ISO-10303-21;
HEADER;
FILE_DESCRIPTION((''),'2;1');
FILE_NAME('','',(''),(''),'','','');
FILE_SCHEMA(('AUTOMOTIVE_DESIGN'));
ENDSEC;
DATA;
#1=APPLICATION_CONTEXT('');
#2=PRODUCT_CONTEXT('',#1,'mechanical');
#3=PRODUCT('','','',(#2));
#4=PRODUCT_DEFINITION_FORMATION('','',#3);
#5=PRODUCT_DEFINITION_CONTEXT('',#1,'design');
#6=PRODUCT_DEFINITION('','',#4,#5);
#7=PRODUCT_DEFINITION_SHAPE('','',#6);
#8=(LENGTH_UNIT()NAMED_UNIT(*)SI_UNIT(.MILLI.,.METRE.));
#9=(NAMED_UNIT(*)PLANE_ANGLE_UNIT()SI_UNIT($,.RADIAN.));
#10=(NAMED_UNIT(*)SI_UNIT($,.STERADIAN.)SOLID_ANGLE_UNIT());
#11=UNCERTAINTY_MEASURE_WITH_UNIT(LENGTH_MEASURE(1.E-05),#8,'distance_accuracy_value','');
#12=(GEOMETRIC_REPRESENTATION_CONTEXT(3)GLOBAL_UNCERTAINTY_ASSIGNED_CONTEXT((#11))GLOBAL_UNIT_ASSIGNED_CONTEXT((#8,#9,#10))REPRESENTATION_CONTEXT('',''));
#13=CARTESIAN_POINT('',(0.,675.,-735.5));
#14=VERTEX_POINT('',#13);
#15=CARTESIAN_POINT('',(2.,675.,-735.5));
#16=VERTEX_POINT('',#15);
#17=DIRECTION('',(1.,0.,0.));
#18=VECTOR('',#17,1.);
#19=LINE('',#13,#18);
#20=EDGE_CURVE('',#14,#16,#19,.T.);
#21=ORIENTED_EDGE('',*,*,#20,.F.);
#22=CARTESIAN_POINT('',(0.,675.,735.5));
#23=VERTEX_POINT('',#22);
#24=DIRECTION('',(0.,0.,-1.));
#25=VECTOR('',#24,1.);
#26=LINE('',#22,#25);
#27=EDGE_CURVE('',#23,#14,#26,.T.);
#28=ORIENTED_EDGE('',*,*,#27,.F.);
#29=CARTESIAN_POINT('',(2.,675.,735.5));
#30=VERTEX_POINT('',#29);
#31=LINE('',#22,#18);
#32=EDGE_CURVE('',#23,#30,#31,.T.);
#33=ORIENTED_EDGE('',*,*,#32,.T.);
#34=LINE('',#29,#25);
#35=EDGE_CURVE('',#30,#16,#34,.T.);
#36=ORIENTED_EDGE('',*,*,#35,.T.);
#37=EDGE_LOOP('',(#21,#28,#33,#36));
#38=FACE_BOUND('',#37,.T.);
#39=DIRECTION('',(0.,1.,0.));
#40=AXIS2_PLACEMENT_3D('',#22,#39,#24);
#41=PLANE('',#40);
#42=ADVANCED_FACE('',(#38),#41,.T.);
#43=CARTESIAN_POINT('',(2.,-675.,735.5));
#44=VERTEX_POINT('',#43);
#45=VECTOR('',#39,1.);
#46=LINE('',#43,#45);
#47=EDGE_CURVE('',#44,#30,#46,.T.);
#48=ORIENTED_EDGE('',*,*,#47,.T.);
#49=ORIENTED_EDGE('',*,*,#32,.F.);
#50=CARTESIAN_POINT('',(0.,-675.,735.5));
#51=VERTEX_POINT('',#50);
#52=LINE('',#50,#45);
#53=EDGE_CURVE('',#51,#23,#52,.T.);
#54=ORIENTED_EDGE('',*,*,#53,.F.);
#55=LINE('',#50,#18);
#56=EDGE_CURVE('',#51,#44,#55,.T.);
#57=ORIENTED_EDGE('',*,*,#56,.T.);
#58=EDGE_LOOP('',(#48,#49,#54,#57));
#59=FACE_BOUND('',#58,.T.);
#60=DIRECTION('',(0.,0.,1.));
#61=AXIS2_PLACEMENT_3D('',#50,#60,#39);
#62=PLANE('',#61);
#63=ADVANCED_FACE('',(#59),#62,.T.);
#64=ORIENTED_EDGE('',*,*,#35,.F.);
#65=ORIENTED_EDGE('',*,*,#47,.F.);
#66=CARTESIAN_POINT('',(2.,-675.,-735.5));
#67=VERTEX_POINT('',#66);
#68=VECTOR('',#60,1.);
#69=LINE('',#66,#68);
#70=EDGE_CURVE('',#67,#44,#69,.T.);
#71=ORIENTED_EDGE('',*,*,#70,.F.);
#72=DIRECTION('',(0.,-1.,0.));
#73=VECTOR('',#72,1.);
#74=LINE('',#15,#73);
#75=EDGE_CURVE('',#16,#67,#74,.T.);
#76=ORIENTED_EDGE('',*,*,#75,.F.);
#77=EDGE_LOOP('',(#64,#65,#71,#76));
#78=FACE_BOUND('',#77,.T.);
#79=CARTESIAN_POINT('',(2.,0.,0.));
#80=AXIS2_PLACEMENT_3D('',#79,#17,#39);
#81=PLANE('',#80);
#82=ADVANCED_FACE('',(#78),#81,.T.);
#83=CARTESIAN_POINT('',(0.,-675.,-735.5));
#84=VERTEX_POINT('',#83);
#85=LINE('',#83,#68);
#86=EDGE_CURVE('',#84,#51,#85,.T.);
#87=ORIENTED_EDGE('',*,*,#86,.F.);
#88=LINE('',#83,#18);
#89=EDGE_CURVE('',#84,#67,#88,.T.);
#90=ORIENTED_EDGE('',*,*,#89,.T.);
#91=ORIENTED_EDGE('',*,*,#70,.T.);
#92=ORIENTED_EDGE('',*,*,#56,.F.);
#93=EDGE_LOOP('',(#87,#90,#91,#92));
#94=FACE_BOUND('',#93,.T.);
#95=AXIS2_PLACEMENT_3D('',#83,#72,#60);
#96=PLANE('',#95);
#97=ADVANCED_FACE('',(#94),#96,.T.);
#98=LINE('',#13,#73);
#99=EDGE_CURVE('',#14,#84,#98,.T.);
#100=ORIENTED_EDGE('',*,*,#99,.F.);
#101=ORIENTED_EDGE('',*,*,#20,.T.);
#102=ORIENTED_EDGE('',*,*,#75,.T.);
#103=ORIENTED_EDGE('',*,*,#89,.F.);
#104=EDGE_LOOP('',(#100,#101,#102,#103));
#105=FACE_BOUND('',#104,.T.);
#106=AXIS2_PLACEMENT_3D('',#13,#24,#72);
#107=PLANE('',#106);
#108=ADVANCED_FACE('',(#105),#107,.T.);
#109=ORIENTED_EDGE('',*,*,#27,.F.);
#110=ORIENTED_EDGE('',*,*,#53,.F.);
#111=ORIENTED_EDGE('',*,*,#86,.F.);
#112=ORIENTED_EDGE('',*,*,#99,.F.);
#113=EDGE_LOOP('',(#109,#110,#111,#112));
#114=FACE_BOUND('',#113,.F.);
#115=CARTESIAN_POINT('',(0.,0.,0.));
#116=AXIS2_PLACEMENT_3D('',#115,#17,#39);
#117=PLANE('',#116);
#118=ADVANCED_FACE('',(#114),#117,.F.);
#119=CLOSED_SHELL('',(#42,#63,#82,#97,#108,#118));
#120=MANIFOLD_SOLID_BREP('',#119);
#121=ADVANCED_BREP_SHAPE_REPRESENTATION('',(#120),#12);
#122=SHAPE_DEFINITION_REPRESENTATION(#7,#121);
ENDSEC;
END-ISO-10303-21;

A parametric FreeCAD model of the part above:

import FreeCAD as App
import Part
import Sketcher
from FreeCAD import Vector

doc = App.newDocument("Part")
params = doc.addObject("Spreadsheet::Sheet", "Params")
for row, (alias, value) in enumerate([
    ("sketch1_width", "1350 mm"),
    ("sketch1_height", "1471 mm"),
    ("pad1_length", "2 mm"),
], start=1):
    params.set(f"A{row}", alias)
    params.set(f"B{row}", "=" + value)
    params.setAlias(f"B{row}", alias)

body = doc.addObject("PartDesign::Body", "Body")

# Sketch on YZ plane
sketch1 = body.newObject("Sketcher::SketchObject", "Sketch")
sketch1.AttachmentSupport = (doc.getObject("YZ_Plane"), [""])
sketch1.MapMode = "FlatFace"
sketch1.addGeometry([
    Part.LineSegment(Vector(675, 736, 0), Vector(-675, 736, 0)),
    Part.LineSegment(Vector(-675, 736, 0), Vector(-675, -736, 0)),
    Part.LineSegment(Vector(-675, -736, 0), Vector(675, -736, 0)),
    Part.LineSegment(Vector(675, -736, 0), Vector(675, 736, 0)),
], False)
sketch1.addConstraint([
    Sketcher.Constraint("Coincident", 0, 2, 1, 1),
    Sketcher.Constraint("Coincident", 1, 2, 2, 1),
    Sketcher.Constraint("Coincident", 2, 2, 3, 1),
    Sketcher.Constraint("Coincident", 3, 2, 0, 1),
    Sketcher.Constraint("Horizontal", 0),
    Sketcher.Constraint("Vertical", 1),
    Sketcher.Constraint("Horizontal", 2),
    Sketcher.Constraint("Vertical", 3),
    Sketcher.Constraint("Symmetric", 0, 2, 2, 2, -1, 1),
    Sketcher.Constraint("DistanceX", 0, 2, 0, 1, 1350.0),
    Sketcher.Constraint("DistanceY", 1, 2, 1, 1, 1471.0),
])
sketch1.setExpression("Constraints[9]", "Params.sketch1_width")
sketch1.setExpression("Constraints[10]", "Params.sketch1_height")
pad1 = body.newObject("PartDesign::Pad", "Pad")
pad1.Profile = sketch1
pad1.setExpression("Length", "Params.pad1_length")

doc.recompute()
